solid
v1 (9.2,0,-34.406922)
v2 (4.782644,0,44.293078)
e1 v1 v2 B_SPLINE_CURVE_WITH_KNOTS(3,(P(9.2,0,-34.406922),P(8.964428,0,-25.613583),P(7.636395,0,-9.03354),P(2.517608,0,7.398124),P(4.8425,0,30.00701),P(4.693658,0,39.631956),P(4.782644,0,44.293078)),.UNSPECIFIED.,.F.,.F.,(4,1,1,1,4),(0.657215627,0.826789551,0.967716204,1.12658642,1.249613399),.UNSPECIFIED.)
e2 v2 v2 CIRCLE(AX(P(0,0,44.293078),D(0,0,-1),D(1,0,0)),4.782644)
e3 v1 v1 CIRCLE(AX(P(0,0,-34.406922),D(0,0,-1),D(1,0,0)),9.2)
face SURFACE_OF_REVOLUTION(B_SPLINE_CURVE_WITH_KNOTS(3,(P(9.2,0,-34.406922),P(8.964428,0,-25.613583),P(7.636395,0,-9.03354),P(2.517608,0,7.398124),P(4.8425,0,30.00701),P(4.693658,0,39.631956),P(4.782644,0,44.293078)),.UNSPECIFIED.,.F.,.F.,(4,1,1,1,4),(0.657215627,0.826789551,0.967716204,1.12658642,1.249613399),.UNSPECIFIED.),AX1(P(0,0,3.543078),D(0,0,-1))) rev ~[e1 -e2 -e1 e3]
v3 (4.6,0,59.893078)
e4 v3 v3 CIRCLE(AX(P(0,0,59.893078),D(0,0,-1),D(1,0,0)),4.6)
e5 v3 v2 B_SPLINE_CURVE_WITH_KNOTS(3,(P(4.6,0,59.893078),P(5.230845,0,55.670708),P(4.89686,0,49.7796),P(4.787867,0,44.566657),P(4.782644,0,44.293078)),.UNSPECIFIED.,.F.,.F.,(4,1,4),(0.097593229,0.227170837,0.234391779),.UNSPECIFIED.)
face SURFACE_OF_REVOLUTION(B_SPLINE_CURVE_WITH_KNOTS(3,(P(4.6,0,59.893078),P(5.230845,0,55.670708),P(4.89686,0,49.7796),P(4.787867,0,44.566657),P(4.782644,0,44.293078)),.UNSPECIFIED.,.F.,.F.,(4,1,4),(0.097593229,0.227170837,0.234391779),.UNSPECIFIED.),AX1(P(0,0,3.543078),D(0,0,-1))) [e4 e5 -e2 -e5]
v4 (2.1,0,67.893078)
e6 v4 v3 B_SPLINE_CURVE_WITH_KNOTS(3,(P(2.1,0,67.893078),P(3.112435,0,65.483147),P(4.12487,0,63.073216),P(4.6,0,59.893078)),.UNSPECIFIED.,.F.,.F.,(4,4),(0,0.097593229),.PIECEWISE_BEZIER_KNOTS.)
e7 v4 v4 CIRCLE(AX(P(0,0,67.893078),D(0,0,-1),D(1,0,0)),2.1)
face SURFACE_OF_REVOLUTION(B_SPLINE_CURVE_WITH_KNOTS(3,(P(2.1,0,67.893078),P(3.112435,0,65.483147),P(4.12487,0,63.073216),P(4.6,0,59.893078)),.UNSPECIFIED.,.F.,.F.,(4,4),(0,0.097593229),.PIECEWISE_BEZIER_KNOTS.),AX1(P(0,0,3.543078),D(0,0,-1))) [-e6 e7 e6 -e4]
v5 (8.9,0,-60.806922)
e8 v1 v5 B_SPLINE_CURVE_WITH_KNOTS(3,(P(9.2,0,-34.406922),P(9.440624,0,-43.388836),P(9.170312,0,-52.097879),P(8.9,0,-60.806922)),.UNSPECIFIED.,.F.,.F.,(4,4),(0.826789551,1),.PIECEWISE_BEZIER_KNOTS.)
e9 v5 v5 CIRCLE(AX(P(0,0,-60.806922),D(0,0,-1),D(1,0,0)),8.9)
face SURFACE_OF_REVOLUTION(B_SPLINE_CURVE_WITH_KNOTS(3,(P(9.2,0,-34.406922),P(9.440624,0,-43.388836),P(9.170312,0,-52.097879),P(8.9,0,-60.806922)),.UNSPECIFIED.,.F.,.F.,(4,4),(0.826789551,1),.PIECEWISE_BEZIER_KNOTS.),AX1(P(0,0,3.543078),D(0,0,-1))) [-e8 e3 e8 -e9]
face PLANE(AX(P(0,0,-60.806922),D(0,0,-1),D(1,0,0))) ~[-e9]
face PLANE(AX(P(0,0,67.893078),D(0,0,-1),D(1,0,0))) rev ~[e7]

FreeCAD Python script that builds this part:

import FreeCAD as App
import Part
import Sketcher

V = App.Vector

doc = App.newDocument("Part")
params = doc.addObject("Spreadsheet::Sheet", "Params")
for row, (alias, value) in enumerate([
    ("revolution_angle", "360 deg"),
], start=1):
    params.set(f"A{row}", alias)
    params.set(f"B{row}", "=" + value)
    params.setAlias(f"B{row}", alias)

body = doc.addObject("PartDesign::Body", "Body")

# Sketch on XZ plane
sketch1 = doc.addObject("Sketcher::SketchObject", "Sketch")
body.addObject(sketch1)
sketch1.AttachmentSupport = (doc.XZ_Plane, [""])
sketch1.MapMode = "FlatFace"
sketch1.addGeometry(Part.LineSegment(V(2.1, 67.893078, 0), V(0, 67.893078, 0)), False)
sketch1.addGeometry(Part.LineSegment(V(0, 67.893078, 0), V(0, -60.806922, 0)), False)
sketch1.addGeometry(Part.LineSegment(V(0, -60.806922, 0), V(8.9, -60.806922, 0)), False)
sketch1.addGeometry(Part.BSplineCurve([V(9.2, -34.406922, 0), V(9.440624, -43.388836, 0), V(9.170312, -52.097879, 0), V(8.9, -60.806922, 0)], [4, 4], [0.826789551, 1], False, 3, [1, 1, 1, 1], False), False)
sketch1.addGeometry(Part.BSplineCurve([V(9.2, -34.406922, 0), V(8.964428, -25.613583, 0), V(7.636395, -9.03354, 0), V(2.517608, 7.398124, 0), V(4.8425, 30.00701, 0), V(4.693658, 39.631956, 0), V(4.782644, 44.293078, 0)], [4, 1, 1, 1, 4], [0.657215627, 0.826789551, 0.967716204, 1.12658642, 1.249613399], False, 3, [1, 1, 1, 1, 1, 1, 1], False), False)
sketch1.addGeometry(Part.BSplineCurve([V(4.6, 59.893078, 0), V(5.230845, 55.670708, 0), V(4.89686, 49.7796, 0), V(4.787867, 44.566657, 0), V(4.782644, 44.293078, 0)], [4, 1, 4], [0.097593229, 0.227170837, 0.234391779], False, 3, [1, 1, 1, 1, 1], False), False)
sketch1.addGeometry(Part.BSplineCurve([V(2.1, 67.893078, 0), V(3.112435, 65.483147, 0), V(4.12487, 63.073216, 0), V(4.6, 59.893078, 0)], [4, 4], [0, 0.097593229], False, 3, [1, 1, 1, 1], False), False)
sketch1.addConstraint(Sketcher.Constraint("Block", 3))
sketch1.addConstraint(Sketcher.Constraint("Block", 4))
sketch1.addConstraint(Sketcher.Constraint("Block", 5))
sketch1.addConstraint(Sketcher.Constraint("Block", 6))
sketch1.addConstraint(Sketcher.Constraint("Coincident", 0, 2, 1, 1))
sketch1.addConstraint(Sketcher.Constraint("Coincident", 1, 2, 2, 1))
sketch1.addConstraint(Sketcher.Constraint("Coincident", 2, 2, 3, 2))
sketch1.addConstraint(Sketcher.Constraint("Coincident", 6, 1, 0, 1))
sketch1.addConstraint(Sketcher.Constraint("Horizontal", 0))
sketch1.addConstraint(Sketcher.Constraint("Vertical", 1))
sketch1.addConstraint(Sketcher.Constraint("Horizontal", 2))
sketch1.addConstraint(Sketcher.Constraint("PointOnObject", 0, 2, -2))
revolution = doc.addObject("PartDesign::Revolution", "Revolution")
body.addObject(revolution)
revolution.Profile = sketch1
revolution.ReferenceAxis = (sketch1, ["V_Axis"])
revolution.setExpression("Angle", "Params.revolution_angle")

doc.recompute()
